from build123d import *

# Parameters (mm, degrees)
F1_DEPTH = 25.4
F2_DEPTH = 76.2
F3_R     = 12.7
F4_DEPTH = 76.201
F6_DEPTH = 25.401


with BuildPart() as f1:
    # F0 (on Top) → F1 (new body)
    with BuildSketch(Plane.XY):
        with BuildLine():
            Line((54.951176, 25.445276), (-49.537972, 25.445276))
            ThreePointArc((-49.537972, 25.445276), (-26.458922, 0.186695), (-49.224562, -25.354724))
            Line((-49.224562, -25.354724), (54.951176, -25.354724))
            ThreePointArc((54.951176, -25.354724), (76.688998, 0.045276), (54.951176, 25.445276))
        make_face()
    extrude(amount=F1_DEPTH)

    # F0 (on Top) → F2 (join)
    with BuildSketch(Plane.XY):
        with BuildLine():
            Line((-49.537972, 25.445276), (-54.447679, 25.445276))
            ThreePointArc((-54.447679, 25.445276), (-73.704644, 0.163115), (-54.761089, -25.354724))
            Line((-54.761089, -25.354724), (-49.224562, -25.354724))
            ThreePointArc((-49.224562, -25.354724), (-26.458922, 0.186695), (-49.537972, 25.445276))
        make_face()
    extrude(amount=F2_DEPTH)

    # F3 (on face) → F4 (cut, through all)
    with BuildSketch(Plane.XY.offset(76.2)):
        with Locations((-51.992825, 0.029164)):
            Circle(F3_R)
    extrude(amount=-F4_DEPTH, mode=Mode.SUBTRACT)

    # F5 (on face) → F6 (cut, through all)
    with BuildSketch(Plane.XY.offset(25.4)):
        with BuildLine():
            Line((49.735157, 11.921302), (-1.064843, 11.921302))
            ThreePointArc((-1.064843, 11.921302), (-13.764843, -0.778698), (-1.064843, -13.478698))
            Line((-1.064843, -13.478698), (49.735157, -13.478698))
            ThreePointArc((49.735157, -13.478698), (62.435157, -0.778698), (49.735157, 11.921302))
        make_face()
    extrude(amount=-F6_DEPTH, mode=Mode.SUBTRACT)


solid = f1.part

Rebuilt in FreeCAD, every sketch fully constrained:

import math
import FreeCAD as App
import Part
import Sketcher
Q = App.Units.Quantity

doc = App.newDocument("Part")
body = doc.addObject("PartDesign::Body", "Body")

sketch1 = doc.addObject("Sketcher::SketchObject", "Sketch")
body.addObject(sketch1)
sketch1.AttachmentSupport = (doc.XY_Plane, [""])
sketch1.MapMode = "FlatFace"
sketch1.addGeometry([
    Part.LineSegment(App.Vector(55, 25, 0), App.Vector(-50, 25, 0)),
    Part.ArcOfCircle(Part.Circle(App.Vector(-52, 0, 0), App.Vector(0, 0, 1), 26), math.radians(-84), math.radians(84)),
    Part.LineSegment(App.Vector(-49, -25, 0), App.Vector(55, -25, 0)),
    Part.ArcOfCircle(Part.Circle(App.Vector(51, 0, 0), App.Vector(0, 0, 1), 26), math.radians(-81), math.radians(81)),
], False)
sketch1.addConstraint([
    Sketcher.Constraint("Coincident", 0, 2, 1, 2),
    Sketcher.Constraint("Coincident", 1, 1, 2, 1),
    Sketcher.Constraint("Coincident", 2, 2, 3, 1),
    Sketcher.Constraint("Coincident", 3, 2, 0, 1),
    Sketcher.Constraint("Horizontal", 0),
    Sketcher.Constraint("Horizontal", 2),
    Sketcher.Constraint("Vertical", 2, 2, 3, 2),
    Sketcher.Constraint("DistanceY", 3, 3, 0, 2, Q("1 in")),
    Sketcher.Constraint("Radius", 1, 25.53439),
    Sketcher.Constraint("Radius", 3, 25.708484),
    Sketcher.Constraint("DistanceX", 0, 2, 0, 1, 104.489148),
    Sketcher.Constraint("DistanceX", 1, 3, 2, 2, 106.944002),
    Sketcher.Constraint("DistanceX", 1, 1, -1, 1, 49.224562),
    Sketcher.Constraint("DistanceY", -1, 1, 1, 3, 0.029164),
])
pad1 = doc.addObject("PartDesign::Pad", "Pad")
body.addObject(pad1)
pad1.Profile = sketch1
pad1.Length = Q("1 in")

sketch2 = doc.addObject("Sketcher::SketchObject", "Sketch001")
body.addObject(sketch2)
sketch2.AttachmentSupport = (doc.XY_Plane, [""])
sketch2.MapMode = "FlatFace"
sketch2.addGeometry([
    Part.LineSegment(App.Vector(-49.5, 25.4, 0), App.Vector(-54.4, 25.4, 0)),
    Part.ArcOfCircle(Part.Circle(App.Vector(-47.3, 0, 0), App.Vector(0, 0, 1), 26.4), math.radians(106), math.radians(254)),
    Part.LineSegment(App.Vector(-54.8, -25.4, 0), App.Vector(-49.2, -25.4, 0)),
    Part.ArcOfCircle(Part.Circle(App.Vector(-52, 0, 0), App.Vector(0, 0, 1), 25.5), math.radians(-84), math.radians(84)),
], False)
sketch2.addConstraint([
    Sketcher.Constraint("Coincident", 0, 2, 1, 1),
    Sketcher.Constraint("Coincident", 1, 2, 2, 1),
    Sketcher.Constraint("Coincident", 2, 2, 3, 1),
    Sketcher.Constraint("Coincident", 3, 2, 0, 1),
    Sketcher.Constraint("Horizontal", 0),
    Sketcher.Constraint("Horizontal", 2),
    Sketcher.Constraint("PointOnObject", 1, 3, -1),
    Sketcher.Constraint("DistanceY", 1, 2, 0, 2, Q("2 in")),
    Sketcher.Constraint("Radius", 1, 26.439408),
    Sketcher.Constraint("Radius", 3, 25.53439),
    Sketcher.Constraint("DistanceX", 0, 2, 0, 1, 4.909707),
    Sketcher.Constraint("DistanceX", 2, 1, 2, 2, 5.536527),
    Sketcher.Constraint("DistanceX", 1, 3, -1, 1, 47.265739),
    Sketcher.Constraint("DistanceX", 0, 2, -1, 1, 54.447679),
])
pad2 = doc.addObject("PartDesign::Pad", "Pad001")
body.addObject(pad2)
pad2.Profile = sketch2
pad2.Length = Q("3 in")

sketch3 = doc.addObject("Sketcher::SketchObject", "Sketch002")
body.addObject(sketch3)
sketch3.AttachmentSupport = (doc.XY_Plane, [""])
sketch3.MapMode = "FlatFace"
sketch3.AttachmentOffset = App.Placement(App.Vector(0, 0, 3 * 25.4), App.Rotation())
sketch3.addGeometry(Part.Circle(App.Vector(-52, 0, 0), App.Vector(0, 0, 1), 13), False)
sketch3.addConstraint([
    Sketcher.Constraint("Diameter", 0, Q("1 in")),
    Sketcher.Constraint("DistanceX", 0, 3, -1, 1, 51.992825),
    Sketcher.Constraint("DistanceY", -1, 1, 0, 3, 0.029164),
])
pocket1 = doc.addObject("PartDesign::Pocket", "Pocket")
body.addObject(pocket1)
pocket1.Profile = sketch3
pocket1.Type = "ThroughAll"

sketch4 = doc.addObject("Sketcher::SketchObject", "Sketch003")
body.addObject(sketch4)
sketch4.AttachmentSupport = (doc.XY_Plane, [""])
sketch4.MapMode = "FlatFace"
sketch4.AttachmentOffset = App.Placement(App.Vector(0, 0, 1 * 25.4), App.Rotation())
sketch4.addGeometry([
    Part.LineSegment(App.Vector(50, 12, 0), App.Vector(-1, 12, 0)),
    Part.ArcOfCircle(Part.Circle(App.Vector(-1, -1, 0), App.Vector(0, 0, 1), 13), math.radians(90), math.radians(270)),
    Part.LineSegment(App.Vector(-1, -13, 0), App.Vector(50, -13, 0)),
    Part.ArcOfCircle(Part.Circle(App.Vector(50, -1, 0), App.Vector(0, 0, 1), 13), math.radians(-90), math.radians(90)),
], False)
sketch4.addConstraint([
    Sketcher.Constraint("Tangent", 0, 2, 1, 1),
    Sketcher.Constraint("Tangent", 1, 2, 2, 1),
    Sketcher.Constraint("Tangent", 2, 2, 3, 1),
    Sketcher.Constraint("Tangent", 3, 2, 0, 1),
    Sketcher.Constraint("Horizontal", 0),
    Sketcher.Constraint("Horizontal", 2),
    Sketcher.Constraint("Radius", 1, Q("0.5 in")),
    Sketcher.Constraint("DistanceX", 0, 2, 0, 1, Q("2 in")),
    Sketcher.Constraint("DistanceY", 1, 3, -1, 1, 0.778698),
    Sketcher.Constraint("DistanceX", 1, 3, -1, 1, 1.064843),
])
pocket2 = doc.addObject("PartDesign::Pocket", "Pocket001")
body.addObject(pocket2)
pocket2.Profile = sketch4
pocket2.Type = "ThroughAll"

doc.recompute()
